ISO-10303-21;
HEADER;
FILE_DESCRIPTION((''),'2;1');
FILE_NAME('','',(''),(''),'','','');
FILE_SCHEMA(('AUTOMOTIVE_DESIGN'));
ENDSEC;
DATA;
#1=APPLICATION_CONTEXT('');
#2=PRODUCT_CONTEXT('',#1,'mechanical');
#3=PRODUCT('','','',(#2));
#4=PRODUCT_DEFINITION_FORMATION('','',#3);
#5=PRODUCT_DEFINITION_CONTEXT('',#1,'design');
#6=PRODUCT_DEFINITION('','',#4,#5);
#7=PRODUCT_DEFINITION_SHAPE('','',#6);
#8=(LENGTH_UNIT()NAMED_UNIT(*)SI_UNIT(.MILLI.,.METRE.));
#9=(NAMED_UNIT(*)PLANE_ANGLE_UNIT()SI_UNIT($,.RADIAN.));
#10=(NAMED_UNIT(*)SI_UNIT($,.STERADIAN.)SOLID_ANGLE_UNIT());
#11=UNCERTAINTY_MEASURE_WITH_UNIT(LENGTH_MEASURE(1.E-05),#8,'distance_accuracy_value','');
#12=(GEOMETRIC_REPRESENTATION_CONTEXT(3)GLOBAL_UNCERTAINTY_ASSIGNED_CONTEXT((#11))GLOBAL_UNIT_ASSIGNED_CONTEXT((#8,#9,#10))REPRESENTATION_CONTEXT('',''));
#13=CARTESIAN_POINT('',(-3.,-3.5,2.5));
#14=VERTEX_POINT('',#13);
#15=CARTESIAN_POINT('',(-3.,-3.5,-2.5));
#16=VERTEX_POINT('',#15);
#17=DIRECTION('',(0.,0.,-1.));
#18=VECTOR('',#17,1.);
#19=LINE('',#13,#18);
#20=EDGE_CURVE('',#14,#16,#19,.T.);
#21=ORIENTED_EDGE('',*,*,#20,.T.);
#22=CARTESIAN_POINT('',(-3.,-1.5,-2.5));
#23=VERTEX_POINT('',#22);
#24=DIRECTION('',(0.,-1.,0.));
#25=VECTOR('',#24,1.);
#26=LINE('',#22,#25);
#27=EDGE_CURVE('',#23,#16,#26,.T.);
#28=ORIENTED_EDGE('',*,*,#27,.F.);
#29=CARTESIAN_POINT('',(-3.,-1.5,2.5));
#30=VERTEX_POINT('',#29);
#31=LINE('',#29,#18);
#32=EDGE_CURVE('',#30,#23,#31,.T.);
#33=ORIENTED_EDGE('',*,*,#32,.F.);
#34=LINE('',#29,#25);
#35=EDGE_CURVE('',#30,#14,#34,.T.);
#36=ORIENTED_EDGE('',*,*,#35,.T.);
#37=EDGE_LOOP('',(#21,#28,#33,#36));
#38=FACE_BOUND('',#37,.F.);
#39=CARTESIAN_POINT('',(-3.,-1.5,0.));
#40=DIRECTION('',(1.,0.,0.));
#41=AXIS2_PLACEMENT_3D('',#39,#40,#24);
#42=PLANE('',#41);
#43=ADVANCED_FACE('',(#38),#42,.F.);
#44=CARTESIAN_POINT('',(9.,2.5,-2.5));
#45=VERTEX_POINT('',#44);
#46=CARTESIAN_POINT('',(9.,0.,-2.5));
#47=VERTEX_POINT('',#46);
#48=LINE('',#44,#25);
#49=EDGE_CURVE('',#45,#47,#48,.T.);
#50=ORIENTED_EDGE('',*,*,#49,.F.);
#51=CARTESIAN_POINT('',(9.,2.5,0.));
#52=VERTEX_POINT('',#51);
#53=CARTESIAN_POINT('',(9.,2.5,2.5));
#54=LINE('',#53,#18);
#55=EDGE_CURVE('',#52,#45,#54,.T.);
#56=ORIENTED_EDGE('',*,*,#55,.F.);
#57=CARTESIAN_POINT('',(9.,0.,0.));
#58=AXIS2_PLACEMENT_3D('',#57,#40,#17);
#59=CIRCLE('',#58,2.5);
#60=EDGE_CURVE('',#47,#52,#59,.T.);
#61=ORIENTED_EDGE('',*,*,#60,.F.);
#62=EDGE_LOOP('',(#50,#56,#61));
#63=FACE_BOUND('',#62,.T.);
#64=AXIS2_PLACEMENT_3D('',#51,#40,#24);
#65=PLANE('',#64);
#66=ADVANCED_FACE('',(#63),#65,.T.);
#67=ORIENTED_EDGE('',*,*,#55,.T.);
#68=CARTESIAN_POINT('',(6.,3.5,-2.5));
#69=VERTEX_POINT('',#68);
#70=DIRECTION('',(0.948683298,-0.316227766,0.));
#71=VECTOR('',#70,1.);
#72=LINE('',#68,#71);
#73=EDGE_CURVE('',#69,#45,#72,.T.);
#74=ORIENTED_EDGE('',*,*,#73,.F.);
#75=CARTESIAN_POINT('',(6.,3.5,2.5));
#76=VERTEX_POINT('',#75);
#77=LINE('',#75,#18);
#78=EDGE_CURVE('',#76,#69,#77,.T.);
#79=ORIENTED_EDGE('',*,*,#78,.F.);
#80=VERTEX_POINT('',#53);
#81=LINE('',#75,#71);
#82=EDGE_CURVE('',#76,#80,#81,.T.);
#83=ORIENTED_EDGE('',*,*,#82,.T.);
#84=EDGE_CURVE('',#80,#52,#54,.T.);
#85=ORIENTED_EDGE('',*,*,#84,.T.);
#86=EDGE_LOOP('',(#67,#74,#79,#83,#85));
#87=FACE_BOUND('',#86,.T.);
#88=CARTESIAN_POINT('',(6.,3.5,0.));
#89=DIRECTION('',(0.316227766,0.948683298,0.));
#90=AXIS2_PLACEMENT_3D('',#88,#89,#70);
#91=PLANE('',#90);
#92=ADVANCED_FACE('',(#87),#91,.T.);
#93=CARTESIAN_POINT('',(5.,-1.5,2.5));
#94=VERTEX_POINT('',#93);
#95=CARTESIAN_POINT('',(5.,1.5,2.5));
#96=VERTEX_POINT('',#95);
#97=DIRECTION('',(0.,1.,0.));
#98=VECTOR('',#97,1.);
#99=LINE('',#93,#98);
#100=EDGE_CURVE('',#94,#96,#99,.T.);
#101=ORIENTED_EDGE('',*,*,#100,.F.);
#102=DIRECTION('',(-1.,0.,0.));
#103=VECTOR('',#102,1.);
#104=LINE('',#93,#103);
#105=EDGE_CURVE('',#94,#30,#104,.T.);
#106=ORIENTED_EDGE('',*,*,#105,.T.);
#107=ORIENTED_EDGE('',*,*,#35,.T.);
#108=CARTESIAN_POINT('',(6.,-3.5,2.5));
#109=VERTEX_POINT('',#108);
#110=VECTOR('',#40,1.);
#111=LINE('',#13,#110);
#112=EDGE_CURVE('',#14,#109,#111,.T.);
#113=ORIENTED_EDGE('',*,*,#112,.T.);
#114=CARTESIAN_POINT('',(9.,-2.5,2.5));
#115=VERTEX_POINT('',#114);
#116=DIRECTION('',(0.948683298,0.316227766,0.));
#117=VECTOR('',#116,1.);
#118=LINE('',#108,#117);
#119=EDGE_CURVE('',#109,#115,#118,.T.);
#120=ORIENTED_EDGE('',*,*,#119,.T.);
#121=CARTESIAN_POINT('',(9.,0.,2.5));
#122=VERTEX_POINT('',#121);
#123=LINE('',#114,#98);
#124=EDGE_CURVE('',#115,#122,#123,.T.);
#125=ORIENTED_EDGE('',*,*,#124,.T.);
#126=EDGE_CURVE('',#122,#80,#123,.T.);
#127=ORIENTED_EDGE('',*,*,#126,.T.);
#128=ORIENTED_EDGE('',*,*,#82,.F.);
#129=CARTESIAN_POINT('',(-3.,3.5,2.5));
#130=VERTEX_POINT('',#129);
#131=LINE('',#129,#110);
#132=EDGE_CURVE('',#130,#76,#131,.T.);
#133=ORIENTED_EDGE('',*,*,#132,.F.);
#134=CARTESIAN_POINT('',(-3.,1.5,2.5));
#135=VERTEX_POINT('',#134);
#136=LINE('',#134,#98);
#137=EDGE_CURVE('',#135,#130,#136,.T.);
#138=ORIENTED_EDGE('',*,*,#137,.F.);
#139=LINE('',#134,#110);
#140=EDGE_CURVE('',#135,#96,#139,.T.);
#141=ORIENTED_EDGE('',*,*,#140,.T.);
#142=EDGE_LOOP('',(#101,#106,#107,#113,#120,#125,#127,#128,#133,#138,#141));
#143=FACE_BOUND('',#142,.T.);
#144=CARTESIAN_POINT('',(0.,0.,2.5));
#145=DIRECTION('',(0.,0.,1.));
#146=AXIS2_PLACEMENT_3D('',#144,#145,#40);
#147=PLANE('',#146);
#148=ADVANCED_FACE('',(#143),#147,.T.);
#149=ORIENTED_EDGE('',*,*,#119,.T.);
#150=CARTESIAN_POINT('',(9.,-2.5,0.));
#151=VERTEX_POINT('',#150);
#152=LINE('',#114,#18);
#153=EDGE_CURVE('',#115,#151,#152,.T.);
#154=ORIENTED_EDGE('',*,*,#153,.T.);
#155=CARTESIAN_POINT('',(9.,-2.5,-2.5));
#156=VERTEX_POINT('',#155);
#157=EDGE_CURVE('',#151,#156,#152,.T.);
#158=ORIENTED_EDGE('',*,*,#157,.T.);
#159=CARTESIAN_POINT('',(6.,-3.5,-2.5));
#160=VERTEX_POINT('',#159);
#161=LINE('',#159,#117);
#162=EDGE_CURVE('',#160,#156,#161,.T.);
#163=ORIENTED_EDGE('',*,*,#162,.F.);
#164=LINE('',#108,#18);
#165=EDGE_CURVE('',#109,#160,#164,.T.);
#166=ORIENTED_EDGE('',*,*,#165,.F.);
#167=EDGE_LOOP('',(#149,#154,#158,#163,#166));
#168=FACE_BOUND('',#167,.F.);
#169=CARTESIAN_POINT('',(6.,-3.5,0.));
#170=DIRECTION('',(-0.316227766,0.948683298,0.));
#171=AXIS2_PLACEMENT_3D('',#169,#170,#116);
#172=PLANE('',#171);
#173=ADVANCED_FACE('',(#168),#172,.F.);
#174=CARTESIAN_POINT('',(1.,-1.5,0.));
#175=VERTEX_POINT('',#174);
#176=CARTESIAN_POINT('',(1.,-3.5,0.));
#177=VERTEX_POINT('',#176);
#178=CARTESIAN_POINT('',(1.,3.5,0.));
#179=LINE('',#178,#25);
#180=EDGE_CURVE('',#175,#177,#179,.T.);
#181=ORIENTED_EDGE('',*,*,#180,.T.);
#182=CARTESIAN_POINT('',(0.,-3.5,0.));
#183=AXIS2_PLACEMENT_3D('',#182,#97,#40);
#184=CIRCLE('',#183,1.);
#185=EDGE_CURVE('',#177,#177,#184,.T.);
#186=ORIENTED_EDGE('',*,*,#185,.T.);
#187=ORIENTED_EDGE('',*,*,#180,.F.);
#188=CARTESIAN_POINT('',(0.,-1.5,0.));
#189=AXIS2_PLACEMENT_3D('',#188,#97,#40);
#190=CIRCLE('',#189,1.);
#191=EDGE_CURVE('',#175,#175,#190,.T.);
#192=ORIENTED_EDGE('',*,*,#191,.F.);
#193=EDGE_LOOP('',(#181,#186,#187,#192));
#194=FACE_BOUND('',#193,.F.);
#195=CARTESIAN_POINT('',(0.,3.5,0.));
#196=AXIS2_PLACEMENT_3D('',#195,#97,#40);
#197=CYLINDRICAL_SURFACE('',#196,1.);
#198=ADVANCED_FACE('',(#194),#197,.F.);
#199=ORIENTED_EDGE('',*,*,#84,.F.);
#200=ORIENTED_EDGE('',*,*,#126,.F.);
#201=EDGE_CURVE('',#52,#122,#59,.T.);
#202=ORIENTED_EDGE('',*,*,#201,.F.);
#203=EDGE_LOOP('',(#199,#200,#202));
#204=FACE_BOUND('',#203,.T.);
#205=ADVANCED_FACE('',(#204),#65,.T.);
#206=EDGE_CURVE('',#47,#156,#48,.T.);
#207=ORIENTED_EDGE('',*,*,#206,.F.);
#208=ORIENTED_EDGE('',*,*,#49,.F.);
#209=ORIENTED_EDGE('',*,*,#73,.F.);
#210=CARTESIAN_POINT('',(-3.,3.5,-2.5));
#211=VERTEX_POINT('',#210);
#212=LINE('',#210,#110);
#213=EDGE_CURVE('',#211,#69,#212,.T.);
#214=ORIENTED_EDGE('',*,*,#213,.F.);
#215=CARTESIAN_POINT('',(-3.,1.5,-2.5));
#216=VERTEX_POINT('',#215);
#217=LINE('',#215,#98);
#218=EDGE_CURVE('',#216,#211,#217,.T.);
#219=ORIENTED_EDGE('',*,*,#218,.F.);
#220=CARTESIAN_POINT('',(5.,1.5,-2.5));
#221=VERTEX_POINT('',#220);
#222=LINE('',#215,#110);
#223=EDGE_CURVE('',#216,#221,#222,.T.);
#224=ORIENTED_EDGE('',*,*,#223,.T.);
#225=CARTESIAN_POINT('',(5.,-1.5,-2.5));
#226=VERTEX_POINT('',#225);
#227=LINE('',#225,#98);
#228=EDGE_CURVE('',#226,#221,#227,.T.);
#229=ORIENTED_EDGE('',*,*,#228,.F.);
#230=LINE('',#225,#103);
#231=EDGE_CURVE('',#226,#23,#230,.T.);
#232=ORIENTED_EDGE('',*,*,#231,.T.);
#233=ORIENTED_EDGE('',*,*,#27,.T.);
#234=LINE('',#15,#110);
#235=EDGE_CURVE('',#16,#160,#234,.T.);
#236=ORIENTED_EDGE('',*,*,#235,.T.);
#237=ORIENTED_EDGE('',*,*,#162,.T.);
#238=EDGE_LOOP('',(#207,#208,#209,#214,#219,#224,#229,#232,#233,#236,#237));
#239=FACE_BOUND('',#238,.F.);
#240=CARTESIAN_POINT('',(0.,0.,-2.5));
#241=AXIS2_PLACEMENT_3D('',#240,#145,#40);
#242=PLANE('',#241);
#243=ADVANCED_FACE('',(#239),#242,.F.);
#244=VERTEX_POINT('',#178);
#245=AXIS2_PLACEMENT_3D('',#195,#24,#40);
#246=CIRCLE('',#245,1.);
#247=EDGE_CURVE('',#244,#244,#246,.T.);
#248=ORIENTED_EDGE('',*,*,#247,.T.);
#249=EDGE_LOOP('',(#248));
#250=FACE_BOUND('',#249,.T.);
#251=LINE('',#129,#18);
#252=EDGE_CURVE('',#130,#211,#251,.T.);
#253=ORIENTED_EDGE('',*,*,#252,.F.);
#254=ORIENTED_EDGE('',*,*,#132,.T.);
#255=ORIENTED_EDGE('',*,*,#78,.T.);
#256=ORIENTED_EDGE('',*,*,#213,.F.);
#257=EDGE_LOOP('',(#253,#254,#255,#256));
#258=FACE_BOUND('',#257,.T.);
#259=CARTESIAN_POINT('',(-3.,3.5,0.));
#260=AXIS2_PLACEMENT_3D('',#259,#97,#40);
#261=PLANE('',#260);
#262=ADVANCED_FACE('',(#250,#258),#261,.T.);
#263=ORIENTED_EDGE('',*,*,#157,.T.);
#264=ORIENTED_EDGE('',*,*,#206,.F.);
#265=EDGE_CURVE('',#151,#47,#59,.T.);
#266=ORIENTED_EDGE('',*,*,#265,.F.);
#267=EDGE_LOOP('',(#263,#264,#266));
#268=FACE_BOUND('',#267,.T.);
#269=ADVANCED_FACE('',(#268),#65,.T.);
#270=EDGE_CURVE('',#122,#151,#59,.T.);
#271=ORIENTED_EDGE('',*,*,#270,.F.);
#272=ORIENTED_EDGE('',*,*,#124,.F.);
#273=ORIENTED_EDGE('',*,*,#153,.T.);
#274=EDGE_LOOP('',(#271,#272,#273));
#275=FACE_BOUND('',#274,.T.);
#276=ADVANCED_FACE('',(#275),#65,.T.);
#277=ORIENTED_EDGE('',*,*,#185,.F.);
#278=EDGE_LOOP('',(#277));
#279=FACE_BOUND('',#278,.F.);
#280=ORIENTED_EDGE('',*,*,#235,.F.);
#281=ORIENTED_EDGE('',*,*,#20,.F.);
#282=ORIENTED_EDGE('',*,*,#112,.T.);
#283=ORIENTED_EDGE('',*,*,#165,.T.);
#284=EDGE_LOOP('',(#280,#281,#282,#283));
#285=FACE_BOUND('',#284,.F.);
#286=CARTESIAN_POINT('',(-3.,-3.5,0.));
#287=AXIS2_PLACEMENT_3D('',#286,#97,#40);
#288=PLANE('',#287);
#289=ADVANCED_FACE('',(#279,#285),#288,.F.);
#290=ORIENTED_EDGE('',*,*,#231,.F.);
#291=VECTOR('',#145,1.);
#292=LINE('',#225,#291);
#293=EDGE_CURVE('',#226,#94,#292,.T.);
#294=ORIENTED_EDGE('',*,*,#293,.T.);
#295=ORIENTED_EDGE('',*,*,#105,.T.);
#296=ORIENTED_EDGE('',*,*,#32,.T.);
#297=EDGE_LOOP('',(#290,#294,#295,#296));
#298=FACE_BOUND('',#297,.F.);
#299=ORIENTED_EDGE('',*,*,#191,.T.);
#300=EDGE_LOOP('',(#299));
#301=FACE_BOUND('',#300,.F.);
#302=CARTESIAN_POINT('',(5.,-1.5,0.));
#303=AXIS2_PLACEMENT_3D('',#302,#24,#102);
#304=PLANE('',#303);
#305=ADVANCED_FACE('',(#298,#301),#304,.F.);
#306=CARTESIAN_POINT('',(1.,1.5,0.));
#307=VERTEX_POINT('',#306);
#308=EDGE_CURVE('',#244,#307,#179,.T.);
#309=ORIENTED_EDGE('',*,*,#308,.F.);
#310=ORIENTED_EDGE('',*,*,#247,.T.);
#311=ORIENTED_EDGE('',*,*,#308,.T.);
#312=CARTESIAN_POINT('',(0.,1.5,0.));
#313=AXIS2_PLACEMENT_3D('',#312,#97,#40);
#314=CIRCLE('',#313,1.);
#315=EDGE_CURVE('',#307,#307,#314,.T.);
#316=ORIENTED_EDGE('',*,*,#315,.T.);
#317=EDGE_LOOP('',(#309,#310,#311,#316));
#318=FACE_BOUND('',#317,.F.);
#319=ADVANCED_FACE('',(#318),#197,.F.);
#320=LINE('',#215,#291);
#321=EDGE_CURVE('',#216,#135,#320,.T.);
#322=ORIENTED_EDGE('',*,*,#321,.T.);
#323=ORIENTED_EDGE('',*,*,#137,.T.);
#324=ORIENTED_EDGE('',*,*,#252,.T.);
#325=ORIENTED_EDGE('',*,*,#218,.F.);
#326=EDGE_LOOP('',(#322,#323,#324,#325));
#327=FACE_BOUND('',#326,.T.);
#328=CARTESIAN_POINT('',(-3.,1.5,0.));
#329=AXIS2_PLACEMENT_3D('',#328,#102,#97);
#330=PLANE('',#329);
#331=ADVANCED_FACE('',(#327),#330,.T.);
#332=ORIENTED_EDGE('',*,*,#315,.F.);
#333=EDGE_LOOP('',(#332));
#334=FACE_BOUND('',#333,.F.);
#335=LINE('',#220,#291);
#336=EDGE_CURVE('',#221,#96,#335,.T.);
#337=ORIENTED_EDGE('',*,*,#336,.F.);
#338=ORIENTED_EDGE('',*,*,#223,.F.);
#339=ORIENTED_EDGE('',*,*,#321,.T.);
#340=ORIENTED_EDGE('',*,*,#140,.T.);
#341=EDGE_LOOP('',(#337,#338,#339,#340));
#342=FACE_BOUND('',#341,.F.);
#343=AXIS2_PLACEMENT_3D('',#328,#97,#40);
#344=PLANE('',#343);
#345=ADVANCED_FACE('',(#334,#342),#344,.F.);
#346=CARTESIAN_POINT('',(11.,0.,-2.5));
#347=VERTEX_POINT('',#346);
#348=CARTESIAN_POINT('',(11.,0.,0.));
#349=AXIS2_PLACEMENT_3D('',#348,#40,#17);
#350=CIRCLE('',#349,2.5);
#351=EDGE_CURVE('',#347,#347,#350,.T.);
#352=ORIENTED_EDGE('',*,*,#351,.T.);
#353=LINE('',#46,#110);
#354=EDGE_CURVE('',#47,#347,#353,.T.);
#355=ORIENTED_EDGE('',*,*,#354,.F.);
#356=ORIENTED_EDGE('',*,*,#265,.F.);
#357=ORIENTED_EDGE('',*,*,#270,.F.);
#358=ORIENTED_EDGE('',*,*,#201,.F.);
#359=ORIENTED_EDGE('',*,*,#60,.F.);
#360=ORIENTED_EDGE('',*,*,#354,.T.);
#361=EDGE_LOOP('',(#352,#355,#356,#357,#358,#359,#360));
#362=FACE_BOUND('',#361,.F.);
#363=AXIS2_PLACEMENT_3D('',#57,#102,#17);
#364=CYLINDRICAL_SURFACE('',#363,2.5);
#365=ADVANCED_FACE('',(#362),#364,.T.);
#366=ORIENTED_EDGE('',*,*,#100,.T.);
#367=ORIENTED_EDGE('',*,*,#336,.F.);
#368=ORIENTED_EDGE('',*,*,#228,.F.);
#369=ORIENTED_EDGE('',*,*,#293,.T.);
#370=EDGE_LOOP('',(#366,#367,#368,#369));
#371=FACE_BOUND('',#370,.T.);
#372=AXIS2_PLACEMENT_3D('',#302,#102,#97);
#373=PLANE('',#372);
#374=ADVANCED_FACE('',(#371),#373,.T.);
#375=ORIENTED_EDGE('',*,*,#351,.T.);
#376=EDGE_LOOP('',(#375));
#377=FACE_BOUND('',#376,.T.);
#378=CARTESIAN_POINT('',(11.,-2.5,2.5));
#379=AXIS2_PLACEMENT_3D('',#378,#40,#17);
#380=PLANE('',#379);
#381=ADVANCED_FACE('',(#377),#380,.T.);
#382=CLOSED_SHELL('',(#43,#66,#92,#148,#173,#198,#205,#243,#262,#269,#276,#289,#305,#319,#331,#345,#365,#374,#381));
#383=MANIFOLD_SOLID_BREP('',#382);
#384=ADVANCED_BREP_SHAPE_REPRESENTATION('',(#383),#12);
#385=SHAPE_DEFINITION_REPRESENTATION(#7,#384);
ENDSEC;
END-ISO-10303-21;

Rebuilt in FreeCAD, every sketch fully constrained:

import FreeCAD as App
import Part
import Sketcher
Q = App.Units.Quantity

doc = App.newDocument("Part")
params = doc.addObject("Spreadsheet::Sheet", "Params")
for row, (alias, value) in enumerate([
    ("sketch1_height", "2 mm"),
    ("sketch1_height2", "3 mm"),
    ("sketch1_height3", "5 mm"),
    ("pad1_length", "5 mm"),
    ("sketch2_diameter", "2 mm"),
    ("sketch3_diameter", "5 mm"),
    ("pad2_length", "2 mm"),
], start=1):
    params.set(f"A{row}", alias)
    params.set(f"B{row}", "=" + value)
    params.setAlias(f"B{row}", alias)

body = doc.addObject("PartDesign::Body", "Body")

sketch1 = body.newObject("Sketcher::SketchObject", "Sketch")
sketch1.AttachmentSupport = (doc.getObject("XY_Plane"), [""])
sketch1.MapMode = "FlatFace"
sketch1.addGeometry([
    Part.LineSegment(App.Vector(-3, 3.5, 0), App.Vector(-3, 1.5, 0)),
    Part.LineSegment(App.Vector(-3, 1.5, 0), App.Vector(5, 1.5, 0)),
    Part.LineSegment(App.Vector(5, 1.5, 0), App.Vector(5, -1.5, 0)),
    Part.LineSegment(App.Vector(5, -1.5, 0), App.Vector(-3, -1.5, 0)),
    Part.LineSegment(App.Vector(-3, -1.5, 0), App.Vector(-3, -3.5, 0)),
    Part.LineSegment(App.Vector(-3, -3.5, 0), App.Vector(6, -3.5, 0)),
    Part.LineSegment(App.Vector(6, -3.5, 0), App.Vector(9, -2.5, 0)),
    Part.LineSegment(App.Vector(9, -2.5, 0), App.Vector(9, 2.5, 0)),
    Part.LineSegment(App.Vector(9, 2.5, 0), App.Vector(6, 3.5, 0)),
    Part.LineSegment(App.Vector(6, 3.5, 0), App.Vector(-3, 3.5, 0)),
], False)
sketch1.addConstraint([
    Sketcher.Constraint("Coincident", 0, 2, 1, 1),
    Sketcher.Constraint("Coincident", 1, 2, 2, 1),
    Sketcher.Constraint("Coincident", 2, 2, 3, 1),
    Sketcher.Constraint("Coincident", 3, 2, 4, 1),
    Sketcher.Constraint("Coincident", 4, 2, 5, 1),
    Sketcher.Constraint("Coincident", 5, 2, 6, 1),
    Sketcher.Constraint("Coincident", 6, 2, 7, 1),
    Sketcher.Constraint("Coincident", 7, 2, 8, 1),
    Sketcher.Constraint("Coincident", 8, 2, 9, 1),
    Sketcher.Constraint("Coincident", 9, 2, 0, 1),
    Sketcher.Constraint("Vertical", 0),
    Sketcher.Constraint("Horizontal", 1),
    Sketcher.Constraint("Vertical", 2),
    Sketcher.Constraint("Horizontal", 3),
    Sketcher.Constraint("Vertical", 4),
    Sketcher.Constraint("Horizontal", 5),
    Sketcher.Constraint("Vertical", 7),
    Sketcher.Constraint("Horizontal", 9),
    Sketcher.Constraint("Symmetric", 0, 2, 3, 2, -1),
    Sketcher.Constraint("Symmetric", 5, 2, 8, 2, -1),
    Sketcher.Constraint("Equal", 6, 8),
    Sketcher.Constraint("DistanceY", 0, 2, 0, 1, Q("2 mm")),
    Sketcher.Constraint("DistanceY", 2, 2, 2, 1, Q("3 mm")),
    Sketcher.Constraint("DistanceY", 7, 1, 7, 2, Q("5 mm")),
    Sketcher.Constraint("DistanceX", 0, 2, -1, 1, Q("3 mm")),
    Sketcher.Constraint("DistanceX", -1, 1, 1, 2, Q("5 mm")),
    Sketcher.Constraint("DistanceX", 2, 2, 5, 2, Q("1 mm")),
    Sketcher.Constraint("DistanceX", 5, 2, 6, 2, Q("3 mm")),
])
sketch1.setExpression("Constraints[21]", "Params.sketch1_height")
sketch1.setExpression("Constraints[22]", "Params.sketch1_height2")
sketch1.setExpression("Constraints[23]", "Params.sketch1_height3")
pad1 = body.newObject("PartDesign::Pad", "Pad")
pad1.Profile = sketch1
pad1.setExpression("Length", "Params.pad1_length")
pad1.Midplane = True

sketch2 = body.newObject("Sketcher::SketchObject", "Sketch001")
sketch2.AttachmentSupport = (doc.getObject("XZ_Plane"), [""])
sketch2.MapMode = "FlatFace"
sketch2.AttachmentOffset = App.Placement(App.Vector(0, 0, -3.5), App.Rotation())
sketch2.addGeometry(Part.Circle(App.Vector(0, 0, 0), App.Vector(0, 0, 1), 1), False)
sketch2.addConstraint([
    Sketcher.Constraint("Coincident", 0, 3, -1, 1),
    Sketcher.Constraint("Diameter", 0, Q("2 mm")),
])
sketch2.setExpression("Constraints[1]", "Params.sketch2_diameter")
pocket1 = body.newObject("PartDesign::Pocket", "Pocket")
pocket1.Profile = sketch2
pocket1.Type = "ThroughAll"
pocket1.Midplane = True

sketch3 = body.newObject("Sketcher::SketchObject", "Sketch002")
sketch3.AttachmentSupport = (doc.getObject("YZ_Plane"), [""])
sketch3.MapMode = "FlatFace"
sketch3.AttachmentOffset = App.Placement(App.Vector(0, 0, 9), App.Rotation())
sketch3.addGeometry(Part.Circle(App.Vector(0, 0, 0), App.Vector(0, 0, 1), 2.5), False)
sketch3.addConstraint([
    Sketcher.Constraint("Coincident", 0, 3, -1, 1),
    Sketcher.Constraint("Diameter", 0, Q("5 mm")),
])
sketch3.setExpression("Constraints[1]", "Params.sketch3_diameter")
pad2 = body.newObject("PartDesign::Pad", "Pad001")
pad2.Profile = sketch3
pad2.setExpression("Length", "Params.pad2_length")

doc.recompute()
